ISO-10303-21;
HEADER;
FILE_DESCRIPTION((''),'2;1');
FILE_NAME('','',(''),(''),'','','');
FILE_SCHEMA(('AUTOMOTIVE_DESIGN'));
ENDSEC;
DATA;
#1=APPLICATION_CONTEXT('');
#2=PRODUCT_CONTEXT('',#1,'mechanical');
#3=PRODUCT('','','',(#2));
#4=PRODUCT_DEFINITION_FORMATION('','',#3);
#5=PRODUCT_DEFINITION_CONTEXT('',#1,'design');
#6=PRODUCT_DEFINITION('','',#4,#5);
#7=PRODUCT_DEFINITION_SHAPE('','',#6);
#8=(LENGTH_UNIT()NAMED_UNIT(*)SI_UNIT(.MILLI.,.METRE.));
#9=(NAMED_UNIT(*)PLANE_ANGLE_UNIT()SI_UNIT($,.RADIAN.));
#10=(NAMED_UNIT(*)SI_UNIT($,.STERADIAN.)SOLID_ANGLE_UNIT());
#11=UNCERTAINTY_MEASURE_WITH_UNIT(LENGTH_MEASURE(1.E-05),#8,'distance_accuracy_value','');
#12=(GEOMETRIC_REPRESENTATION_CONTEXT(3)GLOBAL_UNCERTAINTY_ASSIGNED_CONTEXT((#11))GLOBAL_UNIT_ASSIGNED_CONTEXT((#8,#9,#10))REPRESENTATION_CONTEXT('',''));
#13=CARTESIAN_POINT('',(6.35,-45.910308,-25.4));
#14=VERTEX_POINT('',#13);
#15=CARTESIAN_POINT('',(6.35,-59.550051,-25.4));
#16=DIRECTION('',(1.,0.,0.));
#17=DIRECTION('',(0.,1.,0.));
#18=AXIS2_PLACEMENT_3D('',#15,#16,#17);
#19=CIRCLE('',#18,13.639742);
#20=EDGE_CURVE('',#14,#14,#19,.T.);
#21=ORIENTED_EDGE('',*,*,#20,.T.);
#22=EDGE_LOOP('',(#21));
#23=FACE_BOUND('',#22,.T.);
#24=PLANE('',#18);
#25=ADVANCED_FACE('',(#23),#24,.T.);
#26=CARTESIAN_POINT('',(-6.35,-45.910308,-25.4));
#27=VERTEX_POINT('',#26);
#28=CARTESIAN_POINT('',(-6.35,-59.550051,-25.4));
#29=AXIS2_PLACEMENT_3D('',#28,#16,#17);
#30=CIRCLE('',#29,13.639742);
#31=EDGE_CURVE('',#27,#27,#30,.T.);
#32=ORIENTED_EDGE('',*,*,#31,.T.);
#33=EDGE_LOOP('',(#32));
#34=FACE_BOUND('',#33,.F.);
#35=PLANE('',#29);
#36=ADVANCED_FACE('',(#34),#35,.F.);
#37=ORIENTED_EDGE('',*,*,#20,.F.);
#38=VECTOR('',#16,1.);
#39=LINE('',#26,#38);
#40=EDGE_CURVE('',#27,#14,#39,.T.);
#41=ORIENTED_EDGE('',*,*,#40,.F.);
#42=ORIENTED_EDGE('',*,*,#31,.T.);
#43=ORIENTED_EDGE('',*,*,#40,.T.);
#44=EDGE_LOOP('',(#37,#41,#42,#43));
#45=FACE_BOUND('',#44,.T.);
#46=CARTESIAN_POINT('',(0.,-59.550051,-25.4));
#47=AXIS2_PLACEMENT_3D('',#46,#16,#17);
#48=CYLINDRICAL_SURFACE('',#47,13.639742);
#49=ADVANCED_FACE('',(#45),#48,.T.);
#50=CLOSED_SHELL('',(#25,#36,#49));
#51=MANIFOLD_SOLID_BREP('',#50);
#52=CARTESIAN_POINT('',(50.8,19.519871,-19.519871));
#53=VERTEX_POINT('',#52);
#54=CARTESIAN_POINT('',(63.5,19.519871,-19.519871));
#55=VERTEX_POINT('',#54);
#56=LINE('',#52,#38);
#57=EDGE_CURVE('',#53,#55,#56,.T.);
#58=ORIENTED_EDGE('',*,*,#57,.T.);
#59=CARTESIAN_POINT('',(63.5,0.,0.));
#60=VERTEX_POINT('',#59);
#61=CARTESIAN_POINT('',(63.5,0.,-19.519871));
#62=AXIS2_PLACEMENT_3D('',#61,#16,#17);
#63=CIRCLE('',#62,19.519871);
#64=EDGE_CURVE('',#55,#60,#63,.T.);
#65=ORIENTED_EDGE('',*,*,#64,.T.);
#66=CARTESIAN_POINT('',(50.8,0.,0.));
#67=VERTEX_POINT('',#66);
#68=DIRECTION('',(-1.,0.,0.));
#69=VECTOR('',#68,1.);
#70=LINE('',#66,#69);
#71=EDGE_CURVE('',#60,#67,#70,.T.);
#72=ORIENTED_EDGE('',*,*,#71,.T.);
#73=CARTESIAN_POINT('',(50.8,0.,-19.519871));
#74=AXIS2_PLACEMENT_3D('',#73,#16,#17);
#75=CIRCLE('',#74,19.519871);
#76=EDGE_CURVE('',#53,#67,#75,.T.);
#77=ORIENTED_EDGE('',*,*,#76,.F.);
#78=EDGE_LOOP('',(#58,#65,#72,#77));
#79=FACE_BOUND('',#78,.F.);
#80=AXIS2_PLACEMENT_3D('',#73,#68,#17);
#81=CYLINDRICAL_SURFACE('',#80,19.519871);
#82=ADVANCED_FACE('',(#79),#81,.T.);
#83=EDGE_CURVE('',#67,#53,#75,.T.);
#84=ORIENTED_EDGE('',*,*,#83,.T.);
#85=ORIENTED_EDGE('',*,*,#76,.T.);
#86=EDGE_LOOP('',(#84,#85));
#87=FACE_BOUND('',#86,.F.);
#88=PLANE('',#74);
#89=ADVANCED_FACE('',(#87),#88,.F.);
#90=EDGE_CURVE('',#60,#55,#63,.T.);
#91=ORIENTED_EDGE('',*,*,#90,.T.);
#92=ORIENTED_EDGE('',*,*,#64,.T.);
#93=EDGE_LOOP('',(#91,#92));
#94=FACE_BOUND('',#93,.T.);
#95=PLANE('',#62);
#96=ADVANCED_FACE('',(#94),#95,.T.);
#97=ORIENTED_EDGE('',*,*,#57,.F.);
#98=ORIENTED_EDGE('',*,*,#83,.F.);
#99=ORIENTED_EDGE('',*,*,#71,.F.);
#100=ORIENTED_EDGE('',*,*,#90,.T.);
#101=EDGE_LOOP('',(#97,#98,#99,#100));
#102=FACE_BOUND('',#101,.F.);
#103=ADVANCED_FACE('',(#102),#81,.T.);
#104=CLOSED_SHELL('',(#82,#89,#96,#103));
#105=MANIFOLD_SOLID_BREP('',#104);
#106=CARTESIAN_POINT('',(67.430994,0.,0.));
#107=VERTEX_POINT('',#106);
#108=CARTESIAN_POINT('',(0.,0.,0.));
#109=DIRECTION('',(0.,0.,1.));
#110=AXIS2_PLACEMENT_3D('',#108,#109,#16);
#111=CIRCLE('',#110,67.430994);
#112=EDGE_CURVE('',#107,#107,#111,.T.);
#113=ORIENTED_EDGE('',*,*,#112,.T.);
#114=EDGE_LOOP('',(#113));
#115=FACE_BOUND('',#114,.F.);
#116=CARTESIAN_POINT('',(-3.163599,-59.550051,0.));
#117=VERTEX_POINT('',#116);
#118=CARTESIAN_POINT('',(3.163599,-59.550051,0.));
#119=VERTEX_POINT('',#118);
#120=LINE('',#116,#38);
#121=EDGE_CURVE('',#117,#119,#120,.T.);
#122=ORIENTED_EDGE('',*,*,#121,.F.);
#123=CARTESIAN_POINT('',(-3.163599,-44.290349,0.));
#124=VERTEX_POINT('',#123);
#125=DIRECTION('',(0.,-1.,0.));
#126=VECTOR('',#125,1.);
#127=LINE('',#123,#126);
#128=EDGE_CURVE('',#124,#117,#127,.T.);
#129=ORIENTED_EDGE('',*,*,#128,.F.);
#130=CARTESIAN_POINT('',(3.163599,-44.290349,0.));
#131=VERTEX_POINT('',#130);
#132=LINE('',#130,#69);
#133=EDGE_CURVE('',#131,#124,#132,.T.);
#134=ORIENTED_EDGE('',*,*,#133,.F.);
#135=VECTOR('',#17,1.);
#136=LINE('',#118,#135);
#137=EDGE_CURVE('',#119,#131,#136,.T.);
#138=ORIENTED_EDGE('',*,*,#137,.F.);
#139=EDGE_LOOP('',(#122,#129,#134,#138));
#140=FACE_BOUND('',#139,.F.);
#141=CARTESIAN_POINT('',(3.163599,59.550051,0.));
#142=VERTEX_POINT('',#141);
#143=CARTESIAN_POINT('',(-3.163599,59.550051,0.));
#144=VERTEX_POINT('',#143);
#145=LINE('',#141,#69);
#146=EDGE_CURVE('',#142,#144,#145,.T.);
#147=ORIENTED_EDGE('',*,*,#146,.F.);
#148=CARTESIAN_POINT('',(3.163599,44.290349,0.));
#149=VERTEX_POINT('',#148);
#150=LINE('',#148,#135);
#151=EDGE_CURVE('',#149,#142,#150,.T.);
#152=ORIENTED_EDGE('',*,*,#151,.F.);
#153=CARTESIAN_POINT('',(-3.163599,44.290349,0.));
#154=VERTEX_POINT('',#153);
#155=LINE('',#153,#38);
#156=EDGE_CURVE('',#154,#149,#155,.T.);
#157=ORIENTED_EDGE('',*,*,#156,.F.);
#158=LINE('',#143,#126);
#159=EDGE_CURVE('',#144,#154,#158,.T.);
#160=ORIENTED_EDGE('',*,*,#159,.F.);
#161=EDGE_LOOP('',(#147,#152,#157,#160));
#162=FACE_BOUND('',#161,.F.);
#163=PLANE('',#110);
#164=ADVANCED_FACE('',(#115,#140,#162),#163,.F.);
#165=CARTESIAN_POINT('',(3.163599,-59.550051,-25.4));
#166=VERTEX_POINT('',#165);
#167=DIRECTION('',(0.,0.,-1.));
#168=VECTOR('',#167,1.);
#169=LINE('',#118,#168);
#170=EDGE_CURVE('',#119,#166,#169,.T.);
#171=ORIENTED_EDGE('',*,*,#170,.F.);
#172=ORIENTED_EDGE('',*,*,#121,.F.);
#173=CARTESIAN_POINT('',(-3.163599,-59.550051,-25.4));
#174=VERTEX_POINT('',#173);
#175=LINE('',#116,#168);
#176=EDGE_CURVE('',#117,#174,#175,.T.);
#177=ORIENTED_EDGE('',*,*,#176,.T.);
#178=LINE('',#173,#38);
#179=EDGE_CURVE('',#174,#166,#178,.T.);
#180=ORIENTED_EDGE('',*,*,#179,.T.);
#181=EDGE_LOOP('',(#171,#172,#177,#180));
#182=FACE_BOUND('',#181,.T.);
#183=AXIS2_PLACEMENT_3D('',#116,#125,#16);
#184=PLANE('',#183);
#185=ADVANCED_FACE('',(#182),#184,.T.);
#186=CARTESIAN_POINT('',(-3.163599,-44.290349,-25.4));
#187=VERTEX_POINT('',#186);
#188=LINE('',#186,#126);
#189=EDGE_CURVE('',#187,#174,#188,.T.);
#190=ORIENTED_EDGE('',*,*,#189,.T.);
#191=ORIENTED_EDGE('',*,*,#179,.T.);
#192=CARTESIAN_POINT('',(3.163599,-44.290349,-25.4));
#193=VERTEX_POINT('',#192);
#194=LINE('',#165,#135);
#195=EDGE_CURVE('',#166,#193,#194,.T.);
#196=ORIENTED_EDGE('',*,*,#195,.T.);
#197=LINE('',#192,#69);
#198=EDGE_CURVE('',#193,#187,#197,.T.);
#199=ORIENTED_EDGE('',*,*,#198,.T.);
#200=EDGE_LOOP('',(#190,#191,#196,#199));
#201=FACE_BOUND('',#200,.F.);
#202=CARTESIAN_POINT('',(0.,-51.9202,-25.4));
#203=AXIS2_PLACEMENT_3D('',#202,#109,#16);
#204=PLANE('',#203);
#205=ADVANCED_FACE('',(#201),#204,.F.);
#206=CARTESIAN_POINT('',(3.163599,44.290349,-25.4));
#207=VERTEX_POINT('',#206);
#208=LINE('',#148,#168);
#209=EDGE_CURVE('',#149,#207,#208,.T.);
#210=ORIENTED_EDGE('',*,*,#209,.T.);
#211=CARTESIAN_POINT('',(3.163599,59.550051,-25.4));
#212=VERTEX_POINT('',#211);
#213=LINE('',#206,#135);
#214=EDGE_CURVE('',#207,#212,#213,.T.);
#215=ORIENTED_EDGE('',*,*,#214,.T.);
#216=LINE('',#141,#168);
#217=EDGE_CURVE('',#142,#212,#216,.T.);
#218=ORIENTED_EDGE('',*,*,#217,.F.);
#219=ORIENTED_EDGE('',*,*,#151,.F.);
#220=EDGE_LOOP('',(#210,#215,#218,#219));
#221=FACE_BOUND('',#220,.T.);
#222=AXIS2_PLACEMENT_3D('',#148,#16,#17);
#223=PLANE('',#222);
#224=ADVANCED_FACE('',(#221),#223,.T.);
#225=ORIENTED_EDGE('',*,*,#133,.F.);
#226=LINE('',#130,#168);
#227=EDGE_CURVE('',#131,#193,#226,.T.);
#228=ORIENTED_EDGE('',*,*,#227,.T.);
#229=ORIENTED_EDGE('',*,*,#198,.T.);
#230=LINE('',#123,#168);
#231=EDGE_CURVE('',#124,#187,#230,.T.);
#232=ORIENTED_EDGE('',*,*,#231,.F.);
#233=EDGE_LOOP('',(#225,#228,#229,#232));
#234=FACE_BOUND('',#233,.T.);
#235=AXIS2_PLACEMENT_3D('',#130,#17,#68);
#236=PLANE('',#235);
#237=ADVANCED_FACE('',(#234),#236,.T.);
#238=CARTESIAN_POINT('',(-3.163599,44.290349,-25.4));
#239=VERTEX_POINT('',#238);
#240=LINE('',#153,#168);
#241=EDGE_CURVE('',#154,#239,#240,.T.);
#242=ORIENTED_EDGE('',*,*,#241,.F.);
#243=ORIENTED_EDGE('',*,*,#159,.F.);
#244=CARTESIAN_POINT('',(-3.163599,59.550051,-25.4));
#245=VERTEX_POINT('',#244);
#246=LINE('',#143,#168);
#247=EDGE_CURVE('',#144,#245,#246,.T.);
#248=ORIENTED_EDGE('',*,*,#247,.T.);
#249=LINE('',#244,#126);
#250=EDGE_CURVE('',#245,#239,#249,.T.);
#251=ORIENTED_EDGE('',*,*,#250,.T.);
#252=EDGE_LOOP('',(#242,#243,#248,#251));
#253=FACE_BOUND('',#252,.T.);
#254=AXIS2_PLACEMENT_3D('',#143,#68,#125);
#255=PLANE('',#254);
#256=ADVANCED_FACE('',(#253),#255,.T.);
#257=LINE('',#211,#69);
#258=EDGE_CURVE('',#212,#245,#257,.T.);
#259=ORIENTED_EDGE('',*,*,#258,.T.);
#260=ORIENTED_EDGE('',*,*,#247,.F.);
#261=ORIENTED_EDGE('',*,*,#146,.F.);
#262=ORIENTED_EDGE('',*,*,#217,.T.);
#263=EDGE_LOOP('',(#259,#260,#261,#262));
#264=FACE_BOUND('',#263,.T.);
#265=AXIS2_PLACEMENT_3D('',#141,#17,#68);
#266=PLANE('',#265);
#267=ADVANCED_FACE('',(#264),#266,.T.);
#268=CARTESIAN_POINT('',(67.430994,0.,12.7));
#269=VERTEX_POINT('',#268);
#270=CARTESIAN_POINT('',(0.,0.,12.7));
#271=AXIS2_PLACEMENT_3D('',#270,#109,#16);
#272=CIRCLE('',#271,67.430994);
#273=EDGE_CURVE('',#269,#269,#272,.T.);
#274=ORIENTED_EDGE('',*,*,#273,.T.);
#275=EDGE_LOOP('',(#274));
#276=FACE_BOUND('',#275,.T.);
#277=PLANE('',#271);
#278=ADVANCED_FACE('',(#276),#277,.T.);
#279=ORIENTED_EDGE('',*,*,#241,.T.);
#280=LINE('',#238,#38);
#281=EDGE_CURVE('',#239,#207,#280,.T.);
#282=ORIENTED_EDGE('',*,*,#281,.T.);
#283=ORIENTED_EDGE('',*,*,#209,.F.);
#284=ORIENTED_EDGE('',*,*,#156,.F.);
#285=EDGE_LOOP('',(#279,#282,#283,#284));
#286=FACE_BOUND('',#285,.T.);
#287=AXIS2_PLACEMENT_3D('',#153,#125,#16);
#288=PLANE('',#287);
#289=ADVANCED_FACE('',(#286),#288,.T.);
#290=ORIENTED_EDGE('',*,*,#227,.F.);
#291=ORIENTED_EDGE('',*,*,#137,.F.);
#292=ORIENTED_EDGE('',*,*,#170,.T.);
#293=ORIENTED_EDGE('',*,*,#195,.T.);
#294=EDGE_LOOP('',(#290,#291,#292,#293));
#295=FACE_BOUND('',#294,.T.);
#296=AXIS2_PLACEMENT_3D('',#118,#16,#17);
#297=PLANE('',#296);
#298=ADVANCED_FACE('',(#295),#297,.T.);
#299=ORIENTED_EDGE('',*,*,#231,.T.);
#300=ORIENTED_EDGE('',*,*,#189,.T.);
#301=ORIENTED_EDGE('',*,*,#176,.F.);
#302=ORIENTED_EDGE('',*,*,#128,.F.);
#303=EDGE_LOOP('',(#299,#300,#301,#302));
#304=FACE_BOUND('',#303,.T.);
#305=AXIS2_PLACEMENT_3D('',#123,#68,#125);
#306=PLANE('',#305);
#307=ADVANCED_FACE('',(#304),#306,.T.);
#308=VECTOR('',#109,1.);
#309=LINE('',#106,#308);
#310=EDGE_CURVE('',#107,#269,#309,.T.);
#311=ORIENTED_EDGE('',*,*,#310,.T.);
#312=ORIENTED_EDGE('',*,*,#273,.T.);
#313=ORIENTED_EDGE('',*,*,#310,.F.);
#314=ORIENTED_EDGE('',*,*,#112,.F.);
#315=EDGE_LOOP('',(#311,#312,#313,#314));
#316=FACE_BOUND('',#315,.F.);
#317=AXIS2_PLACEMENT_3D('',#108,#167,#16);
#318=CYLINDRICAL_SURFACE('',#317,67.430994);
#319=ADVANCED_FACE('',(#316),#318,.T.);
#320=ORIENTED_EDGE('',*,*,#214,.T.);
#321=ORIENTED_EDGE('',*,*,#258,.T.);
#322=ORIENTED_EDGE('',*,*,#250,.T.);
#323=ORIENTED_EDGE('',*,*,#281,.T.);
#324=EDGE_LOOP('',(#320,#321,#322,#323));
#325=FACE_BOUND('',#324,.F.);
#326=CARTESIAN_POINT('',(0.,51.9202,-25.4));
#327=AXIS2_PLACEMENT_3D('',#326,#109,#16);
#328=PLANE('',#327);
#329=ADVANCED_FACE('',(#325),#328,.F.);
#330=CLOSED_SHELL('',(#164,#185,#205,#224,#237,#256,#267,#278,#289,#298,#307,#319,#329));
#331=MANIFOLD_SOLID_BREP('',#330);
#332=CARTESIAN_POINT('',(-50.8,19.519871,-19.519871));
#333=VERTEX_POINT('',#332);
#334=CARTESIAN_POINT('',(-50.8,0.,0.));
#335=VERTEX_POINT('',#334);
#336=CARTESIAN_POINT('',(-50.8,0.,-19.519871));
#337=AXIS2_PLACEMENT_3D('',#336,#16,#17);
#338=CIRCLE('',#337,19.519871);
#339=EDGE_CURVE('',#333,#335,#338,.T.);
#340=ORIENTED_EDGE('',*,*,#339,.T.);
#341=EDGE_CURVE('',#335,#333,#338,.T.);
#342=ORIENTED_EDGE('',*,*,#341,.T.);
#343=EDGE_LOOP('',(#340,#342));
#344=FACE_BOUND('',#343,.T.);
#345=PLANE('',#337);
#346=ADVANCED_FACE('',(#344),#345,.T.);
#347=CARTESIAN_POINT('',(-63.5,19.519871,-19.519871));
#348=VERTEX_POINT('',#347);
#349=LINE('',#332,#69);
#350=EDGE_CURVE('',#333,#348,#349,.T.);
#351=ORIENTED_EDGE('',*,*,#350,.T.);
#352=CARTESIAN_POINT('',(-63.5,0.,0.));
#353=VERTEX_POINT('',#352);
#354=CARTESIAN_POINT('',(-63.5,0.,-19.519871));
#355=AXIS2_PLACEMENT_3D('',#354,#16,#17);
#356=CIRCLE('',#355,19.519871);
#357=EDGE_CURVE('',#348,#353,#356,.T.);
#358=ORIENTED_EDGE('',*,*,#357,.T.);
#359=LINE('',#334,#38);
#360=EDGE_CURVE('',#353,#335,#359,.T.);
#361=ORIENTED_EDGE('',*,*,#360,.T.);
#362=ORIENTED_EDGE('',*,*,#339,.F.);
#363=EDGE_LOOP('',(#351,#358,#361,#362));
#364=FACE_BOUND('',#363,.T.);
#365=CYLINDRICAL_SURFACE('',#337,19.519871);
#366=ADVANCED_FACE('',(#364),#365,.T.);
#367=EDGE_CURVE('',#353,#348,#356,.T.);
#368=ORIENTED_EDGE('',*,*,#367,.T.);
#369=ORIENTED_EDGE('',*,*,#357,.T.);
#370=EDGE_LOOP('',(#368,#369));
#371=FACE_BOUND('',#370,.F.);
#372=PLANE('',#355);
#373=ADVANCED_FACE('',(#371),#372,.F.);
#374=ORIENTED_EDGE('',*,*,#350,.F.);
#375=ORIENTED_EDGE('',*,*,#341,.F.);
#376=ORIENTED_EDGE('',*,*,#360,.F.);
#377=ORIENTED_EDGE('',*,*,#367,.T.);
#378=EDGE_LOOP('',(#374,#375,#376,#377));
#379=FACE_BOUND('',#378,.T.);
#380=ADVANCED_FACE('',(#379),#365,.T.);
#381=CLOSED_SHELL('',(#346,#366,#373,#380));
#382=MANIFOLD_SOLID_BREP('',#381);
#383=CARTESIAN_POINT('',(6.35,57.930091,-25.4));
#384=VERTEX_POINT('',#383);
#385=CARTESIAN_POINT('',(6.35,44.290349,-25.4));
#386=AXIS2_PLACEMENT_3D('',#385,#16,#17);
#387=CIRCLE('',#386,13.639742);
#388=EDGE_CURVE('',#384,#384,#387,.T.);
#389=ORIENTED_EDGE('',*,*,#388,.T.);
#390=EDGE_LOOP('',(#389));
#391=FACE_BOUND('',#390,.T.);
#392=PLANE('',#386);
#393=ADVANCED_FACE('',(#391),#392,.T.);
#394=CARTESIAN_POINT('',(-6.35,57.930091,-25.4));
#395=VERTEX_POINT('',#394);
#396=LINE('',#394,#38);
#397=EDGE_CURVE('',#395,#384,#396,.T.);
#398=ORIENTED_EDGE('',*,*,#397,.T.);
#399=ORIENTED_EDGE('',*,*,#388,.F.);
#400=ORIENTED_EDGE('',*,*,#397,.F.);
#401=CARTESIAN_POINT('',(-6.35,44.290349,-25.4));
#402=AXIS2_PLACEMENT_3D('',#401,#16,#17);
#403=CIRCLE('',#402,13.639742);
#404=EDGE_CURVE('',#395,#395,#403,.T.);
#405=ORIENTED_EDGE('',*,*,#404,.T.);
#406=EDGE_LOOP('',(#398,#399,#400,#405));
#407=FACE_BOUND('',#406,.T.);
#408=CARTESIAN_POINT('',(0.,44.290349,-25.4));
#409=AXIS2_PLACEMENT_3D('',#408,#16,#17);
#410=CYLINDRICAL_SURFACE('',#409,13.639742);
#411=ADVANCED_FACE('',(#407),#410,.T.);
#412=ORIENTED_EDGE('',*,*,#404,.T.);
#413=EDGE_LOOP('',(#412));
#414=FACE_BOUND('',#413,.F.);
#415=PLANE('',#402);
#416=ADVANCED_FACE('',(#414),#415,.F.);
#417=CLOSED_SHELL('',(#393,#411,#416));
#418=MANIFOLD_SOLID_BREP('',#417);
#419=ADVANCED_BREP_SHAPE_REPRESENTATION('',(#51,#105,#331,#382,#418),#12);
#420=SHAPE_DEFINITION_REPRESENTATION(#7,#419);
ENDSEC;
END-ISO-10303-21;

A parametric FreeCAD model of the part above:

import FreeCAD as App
import Part
import Sketcher
Q = App.Units.Quantity


def add_polygon(sketch, points):
    """Adds a closed chain of lines whose ends are joined by coincident constraints."""
    first, n = sketch.GeometryCount, len(points)
    for a, b in zip(points, points[1:] + points[:1]):
        sketch.addGeometry(Part.LineSegment(App.Vector(*a, 0), App.Vector(*b, 0)), False)
    for i in range(n):
        sketch.addConstraint(Sketcher.Constraint("Coincident", first + i, 2, first + (i + 1) % n, 1))

doc = App.newDocument("Part")
body = doc.addObject("PartDesign::Body", "Body")
body.AllowCompound = True

sketch1 = body.newObject("Sketcher::SketchObject", "Sketch")
sketch1.AttachmentSupport = (doc.getObject("XY_Plane"), [""])
sketch1.MapMode = "FlatFace"
sketch1.addGeometry(Part.Circle(App.Vector(0, 0, 0), App.Vector(0, 0, 1), 67), False)
sketch1.addConstraint(Sketcher.Constraint("Coincident", 0, 3, -1, 1))
sketch1.addConstraint(Sketcher.Constraint("Diameter", 0, Q("134.861989 mm")))
pad1 = body.newObject("PartDesign::Pad", "Pad")
pad1.Profile = sketch1
pad1.Length = Q("0.5 in")

sketch2 = body.newObject("Sketcher::SketchObject", "Sketch001")
sketch2.AttachmentSupport = (doc.getObject("XY_Plane"), [""])
sketch2.MapMode = "FlatFace"
add_polygon(sketch2, [(3, -60), (3, -44), (-3, -44), (-3, -60)])
add_polygon(sketch2, [(-3, 60), (-3, 44), (3, 44), (3, 60)])
sketch2.addConstraint(Sketcher.Constraint("Vertical", 0))
sketch2.addConstraint(Sketcher.Constraint("Horizontal", 1))
sketch2.addConstraint(Sketcher.Constraint("Vertical", 2))
sketch2.addConstraint(Sketcher.Constraint("Horizontal", 3))
sketch2.addConstraint(Sketcher.Constraint("Vertical", 4))
sketch2.addConstraint(Sketcher.Constraint("Horizontal", 5))
sketch2.addConstraint(Sketcher.Constraint("Vertical", 6))
sketch2.addConstraint(Sketcher.Constraint("Horizontal", 7))
sketch2.addConstraint(Sketcher.Constraint("Symmetric", 0, 2, 4, 2, -1, 1))
sketch2.addConstraint(Sketcher.Constraint("Symmetric", 2, 2, 6, 2, -1, 1))
sketch2.addConstraint(Sketcher.Constraint("Vertical", 2, 2, 4, 2))
sketch2.addConstraint(Sketcher.Constraint("DistanceX", 1, 2, 1, 1, Q("6.327199 mm")))
sketch2.addConstraint(Sketcher.Constraint("DistanceY", 0, 1, 0, 2, Q("15.259702 mm")))
sketch2.addConstraint(Sketcher.Constraint("DistanceY", 2, 2, 4, 2, Q("103.8404 mm")))
pad2 = body.newObject("PartDesign::Pad", "Pad001")
pad2.Profile = sketch2
pad2.Length = Q("1 in")
pad2.Reversed = True

sketch3 = body.newObject("Sketcher::SketchObject", "Sketch002")
sketch3.AttachmentSupport = (doc.getObject("YZ_Plane"), [""])
sketch3.MapMode = "FlatFace"
sketch3.AttachmentOffset = App.Placement(App.Vector(0, 0, 2 * 25.4), App.Rotation())
sketch3.addGeometry(Part.Circle(App.Vector(0, -20, 0), App.Vector(0, 0, 1), 20), False)
sketch3.addConstraint(Sketcher.Constraint("PointOnObject", 0, 3, -2))
sketch3.addConstraint(Sketcher.Constraint("Diameter", 0, Q("39.039742 mm")))
sketch3.addConstraint(Sketcher.Constraint("DistanceY", 0, 3, -1, 1, Q("19.519871 mm")))
pad3 = body.newObject("PartDesign::Pad", "Pad002")
pad3.Profile = sketch3
pad3.Length = Q("0.5 in")

sketch4 = body.newObject("Sketcher::SketchObject", "Sketch003")
sketch4.AttachmentSupport = (doc.getObject("YZ_Plane"), [""])
sketch4.MapMode = "FlatFace"
sketch4.AttachmentOffset = App.Placement(App.Vector(0, 0, -2 * 25.4), App.Rotation())
sketch4.addGeometry(Part.Circle(App.Vector(0, -20, 0), App.Vector(0, 0, 1), 20), False)
sketch4.addConstraint(Sketcher.Constraint("PointOnObject", 0, 3, -2))
sketch4.addConstraint(Sketcher.Constraint("Diameter", 0, Q("39.039742 mm")))
sketch4.addConstraint(Sketcher.Constraint("DistanceY", 0, 3, -1, 1, Q("19.519871 mm")))
pad4 = body.newObject("PartDesign::Pad", "Pad003")
pad4.Profile = sketch4
pad4.Length = Q("0.5 in")
pad4.Reversed = True
body2 = doc.addObject("PartDesign::Body", "Body001")

sketch5 = body2.newObject("Sketcher::SketchObject", "Sketch004")
sketch5.AttachmentSupport = (doc.getObject("YZ_Plane001"), [""])
sketch5.MapMode = "FlatFace"
sketch5.addGeometry(Part.Circle(App.Vector(-60, -25, 0), App.Vector(0, 0, 1), 14), False)
sketch5.addConstraint(Sketcher.Constraint("DistanceY", 0, 3, -1, 1, Q("1 in")))
sketch5.addConstraint(Sketcher.Constraint("Diameter", 0, Q("27.279484 mm")))
sketch5.addConstraint(Sketcher.Constraint("DistanceX", 0, 3, -1, 1, Q("59.550051 mm")))
pad5 = body2.newObject("PartDesign::Pad", "Pad004")
pad5.Profile = sketch5
pad5.Type = "TwoLengths"
pad5.Length = Q("0.25 in")
pad5.Length2 = Q("0.25 in")
body3 = doc.addObject("PartDesign::Body", "Body002")

sketch6 = body3.newObject("Sketcher::SketchObject", "Sketch005")
sketch6.AttachmentSupport = (doc.getObject("YZ_Plane002"), [""])
sketch6.MapMode = "FlatFace"
sketch6.addGeometry(Part.Circle(App.Vector(44, -25, 0), App.Vector(0, 0, 1), 14), False)
sketch6.addConstraint(Sketcher.Constraint("DistanceY", 0, 3, -1, 1, Q("1 in")))
sketch6.addConstraint(Sketcher.Constraint("Diameter", 0, Q("27.279484 mm")))
sketch6.addConstraint(Sketcher.Constraint("DistanceX", -1, 1, 0, 3, Q("44.290349 mm")))
pad6 = body3.newObject("PartDesign::Pad", "Pad005")
pad6.Profile = sketch6
pad6.Type = "TwoLengths"
pad6.Length = Q("0.25 in")
pad6.Length2 = Q("0.25 in")

doc.recompute()
